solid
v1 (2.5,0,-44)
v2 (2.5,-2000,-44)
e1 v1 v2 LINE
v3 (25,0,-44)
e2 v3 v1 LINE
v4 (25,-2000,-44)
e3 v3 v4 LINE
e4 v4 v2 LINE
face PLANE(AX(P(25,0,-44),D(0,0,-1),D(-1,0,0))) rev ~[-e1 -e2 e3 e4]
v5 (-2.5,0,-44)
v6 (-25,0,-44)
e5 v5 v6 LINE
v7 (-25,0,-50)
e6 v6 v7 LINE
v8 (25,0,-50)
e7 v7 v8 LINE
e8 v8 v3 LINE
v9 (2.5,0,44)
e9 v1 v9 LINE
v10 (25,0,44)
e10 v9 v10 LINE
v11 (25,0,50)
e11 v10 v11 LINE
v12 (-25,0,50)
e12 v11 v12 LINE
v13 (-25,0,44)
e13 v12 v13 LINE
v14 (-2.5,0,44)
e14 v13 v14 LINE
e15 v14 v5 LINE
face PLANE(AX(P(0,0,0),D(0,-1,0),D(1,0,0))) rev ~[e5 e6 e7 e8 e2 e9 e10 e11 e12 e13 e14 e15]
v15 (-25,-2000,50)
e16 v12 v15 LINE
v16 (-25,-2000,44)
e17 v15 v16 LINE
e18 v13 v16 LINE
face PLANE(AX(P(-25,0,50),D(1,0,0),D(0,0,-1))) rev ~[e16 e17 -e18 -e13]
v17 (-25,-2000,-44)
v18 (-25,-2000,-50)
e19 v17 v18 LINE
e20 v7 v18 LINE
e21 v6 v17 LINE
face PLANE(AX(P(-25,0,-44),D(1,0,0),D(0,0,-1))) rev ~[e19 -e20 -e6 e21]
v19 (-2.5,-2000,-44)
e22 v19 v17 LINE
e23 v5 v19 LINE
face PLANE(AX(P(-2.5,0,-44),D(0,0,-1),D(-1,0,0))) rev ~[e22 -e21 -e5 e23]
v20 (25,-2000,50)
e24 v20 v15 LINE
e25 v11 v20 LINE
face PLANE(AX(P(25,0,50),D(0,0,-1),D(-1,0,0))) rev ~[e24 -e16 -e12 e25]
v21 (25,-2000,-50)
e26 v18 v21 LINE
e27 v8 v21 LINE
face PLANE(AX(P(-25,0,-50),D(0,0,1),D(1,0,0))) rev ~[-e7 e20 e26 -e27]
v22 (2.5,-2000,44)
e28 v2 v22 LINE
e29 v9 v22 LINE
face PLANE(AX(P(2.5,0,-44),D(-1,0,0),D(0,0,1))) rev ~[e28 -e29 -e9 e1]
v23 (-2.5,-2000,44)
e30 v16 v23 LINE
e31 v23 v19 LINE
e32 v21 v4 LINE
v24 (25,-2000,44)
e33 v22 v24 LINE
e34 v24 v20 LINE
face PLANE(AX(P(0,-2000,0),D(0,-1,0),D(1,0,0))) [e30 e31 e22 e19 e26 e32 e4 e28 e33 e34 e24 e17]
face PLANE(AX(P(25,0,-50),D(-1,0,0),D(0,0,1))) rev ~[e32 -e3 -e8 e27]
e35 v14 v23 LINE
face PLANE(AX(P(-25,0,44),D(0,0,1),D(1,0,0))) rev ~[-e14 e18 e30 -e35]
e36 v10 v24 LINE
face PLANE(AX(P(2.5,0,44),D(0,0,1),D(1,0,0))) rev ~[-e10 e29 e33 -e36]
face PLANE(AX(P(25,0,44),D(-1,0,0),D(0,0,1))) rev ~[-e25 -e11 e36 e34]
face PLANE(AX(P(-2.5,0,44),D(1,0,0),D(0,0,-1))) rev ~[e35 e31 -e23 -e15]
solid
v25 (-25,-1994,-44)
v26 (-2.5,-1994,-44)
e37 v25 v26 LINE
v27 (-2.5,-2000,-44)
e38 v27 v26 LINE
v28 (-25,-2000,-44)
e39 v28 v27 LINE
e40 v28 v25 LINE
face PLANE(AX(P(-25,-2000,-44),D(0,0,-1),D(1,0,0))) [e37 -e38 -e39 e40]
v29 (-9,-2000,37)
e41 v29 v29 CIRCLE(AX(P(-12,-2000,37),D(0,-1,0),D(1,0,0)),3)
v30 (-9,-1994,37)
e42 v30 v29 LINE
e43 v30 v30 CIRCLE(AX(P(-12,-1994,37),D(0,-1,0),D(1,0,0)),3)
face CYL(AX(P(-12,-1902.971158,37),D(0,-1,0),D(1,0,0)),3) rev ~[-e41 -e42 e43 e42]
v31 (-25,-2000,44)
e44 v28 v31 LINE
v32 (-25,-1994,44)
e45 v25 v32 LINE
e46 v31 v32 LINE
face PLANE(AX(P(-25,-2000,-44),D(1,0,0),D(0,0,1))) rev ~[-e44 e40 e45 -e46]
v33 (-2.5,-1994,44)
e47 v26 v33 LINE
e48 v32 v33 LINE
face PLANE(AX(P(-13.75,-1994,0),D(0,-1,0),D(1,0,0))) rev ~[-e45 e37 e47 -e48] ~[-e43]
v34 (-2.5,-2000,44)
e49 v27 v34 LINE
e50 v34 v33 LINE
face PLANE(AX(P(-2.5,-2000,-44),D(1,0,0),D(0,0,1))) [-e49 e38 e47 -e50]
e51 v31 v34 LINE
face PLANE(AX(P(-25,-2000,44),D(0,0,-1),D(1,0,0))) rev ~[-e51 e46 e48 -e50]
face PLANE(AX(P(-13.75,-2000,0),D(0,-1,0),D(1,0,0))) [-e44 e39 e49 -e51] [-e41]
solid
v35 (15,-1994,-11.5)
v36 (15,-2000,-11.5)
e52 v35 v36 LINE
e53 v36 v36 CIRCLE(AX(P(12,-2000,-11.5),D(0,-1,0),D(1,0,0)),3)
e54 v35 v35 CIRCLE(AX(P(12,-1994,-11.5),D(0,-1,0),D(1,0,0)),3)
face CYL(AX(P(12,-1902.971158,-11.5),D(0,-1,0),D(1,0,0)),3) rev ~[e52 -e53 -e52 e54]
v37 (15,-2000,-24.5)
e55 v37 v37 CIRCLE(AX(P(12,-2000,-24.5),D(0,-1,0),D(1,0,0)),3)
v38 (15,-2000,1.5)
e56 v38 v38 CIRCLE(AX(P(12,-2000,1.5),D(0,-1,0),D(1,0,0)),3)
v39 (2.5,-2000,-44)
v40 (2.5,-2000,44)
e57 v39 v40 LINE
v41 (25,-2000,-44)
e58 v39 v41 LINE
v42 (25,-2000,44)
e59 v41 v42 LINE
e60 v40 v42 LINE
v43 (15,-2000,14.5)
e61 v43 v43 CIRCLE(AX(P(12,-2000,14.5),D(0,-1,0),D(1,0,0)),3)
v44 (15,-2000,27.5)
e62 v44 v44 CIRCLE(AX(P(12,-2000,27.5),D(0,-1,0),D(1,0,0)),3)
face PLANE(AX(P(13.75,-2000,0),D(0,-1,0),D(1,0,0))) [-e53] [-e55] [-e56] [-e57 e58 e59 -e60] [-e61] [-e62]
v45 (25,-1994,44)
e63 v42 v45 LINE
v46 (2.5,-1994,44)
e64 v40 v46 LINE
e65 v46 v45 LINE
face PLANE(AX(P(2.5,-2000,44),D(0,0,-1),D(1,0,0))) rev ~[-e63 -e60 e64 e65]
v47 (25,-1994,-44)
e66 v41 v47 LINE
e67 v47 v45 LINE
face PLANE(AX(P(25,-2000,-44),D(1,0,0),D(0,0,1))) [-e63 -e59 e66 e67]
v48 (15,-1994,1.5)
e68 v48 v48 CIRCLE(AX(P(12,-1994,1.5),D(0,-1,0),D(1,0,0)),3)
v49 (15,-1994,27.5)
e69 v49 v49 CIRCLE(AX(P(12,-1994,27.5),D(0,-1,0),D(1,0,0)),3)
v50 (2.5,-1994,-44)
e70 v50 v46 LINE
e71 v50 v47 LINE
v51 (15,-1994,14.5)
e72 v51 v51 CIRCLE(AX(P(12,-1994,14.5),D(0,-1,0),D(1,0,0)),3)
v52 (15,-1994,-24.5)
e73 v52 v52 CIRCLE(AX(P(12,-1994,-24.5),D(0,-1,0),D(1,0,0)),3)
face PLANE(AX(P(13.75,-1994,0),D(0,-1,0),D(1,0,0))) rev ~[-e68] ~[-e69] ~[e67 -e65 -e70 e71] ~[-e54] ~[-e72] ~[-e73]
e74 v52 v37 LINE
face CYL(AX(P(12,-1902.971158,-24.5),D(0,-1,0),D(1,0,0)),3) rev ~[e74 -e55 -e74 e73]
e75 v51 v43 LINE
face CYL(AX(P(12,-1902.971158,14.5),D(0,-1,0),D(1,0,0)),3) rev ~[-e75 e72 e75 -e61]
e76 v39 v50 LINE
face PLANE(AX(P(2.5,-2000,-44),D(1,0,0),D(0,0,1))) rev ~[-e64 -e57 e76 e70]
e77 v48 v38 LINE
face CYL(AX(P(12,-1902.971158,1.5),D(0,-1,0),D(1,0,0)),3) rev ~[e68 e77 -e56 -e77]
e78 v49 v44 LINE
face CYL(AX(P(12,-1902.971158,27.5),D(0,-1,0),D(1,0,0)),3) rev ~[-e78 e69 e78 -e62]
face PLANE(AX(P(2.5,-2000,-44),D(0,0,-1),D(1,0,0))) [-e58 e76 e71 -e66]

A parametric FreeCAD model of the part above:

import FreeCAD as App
import Part
import Sketcher
from FreeCAD import Vector


def add_polygon(sketch, points):
    """Adds a closed chain of lines whose ends are joined by coincident constraints."""
    first, n = sketch.GeometryCount, len(points)
    for a, b in zip(points, points[1:] + points[:1]):
        sketch.addGeometry(Part.LineSegment(App.Vector(*a, 0), App.Vector(*b, 0)), False)
    for i in range(n):
        sketch.addConstraint(Sketcher.Constraint("Coincident", first + i, 2, first + (i + 1) % n, 1))

doc = App.newDocument("Part")
params = doc.addObject("Spreadsheet::Sheet", "Params")
for row, (alias, value) in enumerate([
    ("sketch1_width", "50 mm"),
    ("sketch1_height", "6 mm"),
    ("sketch1_height2", "88 mm"),
    ("sketch1_width2", "22.5 mm"),
    ("pad1_length", "2000 mm"),
    ("sketch2_height", "88 mm"),
    ("sketch2_width", "22.5 mm"),
    ("pad2_length", "6 mm"),
    ("sketch3_diameter", "6 mm"),
    ("hole_diameter", "6 mm"),
    ("sketch4_height", "88 mm"),
    ("sketch4_width", "22.5 mm"),
    ("pad3_length", "6 mm"),
    ("sketch5_diameter", "6 mm"),
    ("hole2_diameter", "6 mm"),
], start=1):
    params.set(f"A{row}", alias)
    params.set(f"B{row}", "=" + value)
    params.setAlias(f"B{row}", alias)

body = doc.addObject("PartDesign::Body", "Body")

sketch1 = body.newObject("Sketcher::SketchObject", "Sketch")
sketch1.AttachmentSupport = (doc.getObject("XZ_Plane"), [""])
sketch1.MapMode = "FlatFace"
add_polygon(sketch1, [(25, 44), (25, 50), (-25, 50), (-25, 44), (-2.5, 44), (-2.5, -44), (-25, -44), (-25, -50), (25, -50), (25, -44), (2.5, -44), (2.5, 44)])
sketch1.addConstraint([
    Sketcher.Constraint("Vertical", 0),
    Sketcher.Constraint("Horizontal", 1),
    Sketcher.Constraint("Vertical", 2),
    Sketcher.Constraint("Horizontal", 3),
    Sketcher.Constraint("Vertical", 4),
    Sketcher.Constraint("Horizontal", 5),
    Sketcher.Constraint("Vertical", 6),
    Sketcher.Constraint("Horizontal", 7),
    Sketcher.Constraint("Vertical", 8),
    Sketcher.Constraint("Horizontal", 9),
    Sketcher.Constraint("Vertical", 10),
    Sketcher.Constraint("Horizontal", 11),
    Sketcher.Constraint("Symmetric", 0, 2, 6, 2, -1, 1),
    Sketcher.Constraint("Symmetric", 2, 2, 8, 2, -1, 1),
    Sketcher.Constraint("Symmetric", 4, 2, 10, 2, -1, 1),
    Sketcher.Constraint("Symmetric", 5, 2, 8, 2, -2),
    Sketcher.Constraint("DistanceX", 1, 2, 1, 1, 50.0),
    Sketcher.Constraint("DistanceY", 0, 1, 0, 2, 6.0),
    Sketcher.Constraint("DistanceY", 4, 2, 4, 1, 88.0),
    Sketcher.Constraint("DistanceX", 3, 1, 3, 2, 22.5),
])
sketch1.setExpression("Constraints[28]", "Params.sketch1_width")
sketch1.setExpression("Constraints[29]", "Params.sketch1_height")
sketch1.setExpression("Constraints[30]", "Params.sketch1_height2")
sketch1.setExpression("Constraints[31]", "Params.sketch1_width2")
pad1 = body.newObject("PartDesign::Pad", "Pad")
pad1.Profile = sketch1
pad1.setExpression("Length", "Params.pad1_length")
body2 = doc.addObject("PartDesign::Body", "Body001")

sketch2 = body2.newObject("Sketcher::SketchObject", "Sketch001")
sketch2.AttachmentSupport = (doc.getObject("XZ_Plane001"), [""])
sketch2.MapMode = "FlatFace"
sketch2.AttachmentOffset = App.Placement(Vector(0, 0, 2000), App.Rotation())
add_polygon(sketch2, [(-25, 44), (-25, -44), (-2.5, -44), (-2.5, 44)])
sketch2.addConstraint([
    Sketcher.Constraint("Vertical", 0),
    Sketcher.Constraint("Horizontal", 1),
    Sketcher.Constraint("Vertical", 2),
    Sketcher.Constraint("Horizontal", 3),
    Sketcher.Constraint("DistanceY", 0, 2, 0, 1, 88.0),
    Sketcher.Constraint("DistanceX", 1, 1, 1, 2, 22.5),
    Sketcher.Constraint("DistanceX", 0, 2, -1, 1, 25.0),
    Sketcher.Constraint("DistanceY", 0, 2, -1, 1, 44.0),
])
sketch2.setExpression("Constraints[8]", "Params.sketch2_height")
sketch2.setExpression("Constraints[9]", "Params.sketch2_width")
pad2 = body2.newObject("PartDesign::Pad", "Pad001")
pad2.Profile = sketch2
pad2.setExpression("Length", "Params.pad2_length")
pad2.Reversed = True

sketch3 = body2.newObject("Sketcher::SketchObject", "Sketch002")
sketch3.AttachmentSupport = (doc.getObject("XZ_Plane001"), [""])
sketch3.MapMode = "FlatFace"
sketch3.AttachmentOffset = App.Placement(Vector(0, 0, 1994), App.Rotation())
sketch3.addGeometry(Part.Circle(Vector(-12, 37, 0), Vector(0, 0, 1), 3), False)
sketch3.addConstraint([
    Sketcher.Constraint("Diameter", 0, 6.0),
    Sketcher.Constraint("DistanceX", 0, 3, -1, 1, 12.0),
    Sketcher.Constraint("DistanceY", -1, 1, 0, 3, 37.0),
])
sketch3.setExpression("Constraints[0]", "Params.sketch3_diameter")
doc.recompute()
hole = body2.newObject("PartDesign::Hole", "Hole")
hole.Profile = sketch3
hole.ThreadType = "None"
hole.setExpression("Diameter", "Params.hole_diameter")
hole.DepthType = "ThroughAll"
hole.Reversed = True
body3 = doc.addObject("PartDesign::Body", "Body002")

sketch4 = body3.newObject("Sketcher::SketchObject", "Sketch003")
sketch4.AttachmentSupport = (doc.getObject("XZ_Plane002"), [""])
sketch4.MapMode = "FlatFace"
sketch4.AttachmentOffset = App.Placement(Vector(0, 0, 2000), App.Rotation())
add_polygon(sketch4, [(2.5, 44), (2.5, -44), (25, -44), (25, 44)])
sketch4.addConstraint([
    Sketcher.Constraint("Vertical", 0),
    Sketcher.Constraint("Horizontal", 1),
    Sketcher.Constraint("Vertical", 2),
    Sketcher.Constraint("Horizontal", 3),
    Sketcher.Constraint("DistanceY", 0, 2, 0, 1, 88.0),
    Sketcher.Constraint("DistanceX", 1, 1, 1, 2, 22.5),
    Sketcher.Constraint("DistanceY", 0, 2, -1, 1, 44.0),
    Sketcher.Constraint("DistanceX", -1, 1, 1, 2, 25.0),
])
sketch4.setExpression("Constraints[8]", "Params.sketch4_height")
sketch4.setExpression("Constraints[9]", "Params.sketch4_width")
pad3 = body3.newObject("PartDesign::Pad", "Pad002")
pad3.Profile = sketch4
pad3.setExpression("Length", "Params.pad3_length")
pad3.Reversed = True

sketch5 = body3.newObject("Sketcher::SketchObject", "Sketch004")
sketch5.AttachmentSupport = (doc.getObject("XZ_Plane002"), [""])
sketch5.MapMode = "FlatFace"
sketch5.AttachmentOffset = App.Placement(Vector(0, 0, 1994), App.Rotation())
sketch5.addGeometry([
    Part.Circle(Vector(12, 27.5, 0), Vector(0, 0, 1), 3),
    Part.Circle(Vector(12, 14.5, 0), Vector(0, 0, 1), 3),
    Part.Circle(Vector(12, 1.5, 0), Vector(0, 0, 1), 3),
    Part.Circle(Vector(12, -11.5, 0), Vector(0, 0, 1), 3),
    Part.Circle(Vector(12, -24.5, 0), Vector(0, 0, 1), 3),
], False)
sketch5.addConstraint([
    Sketcher.Constraint("Equal", 0, 1),
    Sketcher.Constraint("Equal", 1, 2),
    Sketcher.Constraint("Equal", 2, 3),
    Sketcher.Constraint("Equal", 3, 4),
    Sketcher.Constraint("Vertical", 0, 3, 1, 3),
    Sketcher.Constraint("Vertical", 1, 3, 2, 3),
    Sketcher.Constraint("Vertical", 2, 3, 3, 3),
    Sketcher.Constraint("Vertical", 3, 3, 4, 3),
    Sketcher.Constraint("Diameter", 0, 6.0),
    Sketcher.Constraint("DistanceX", -1, 1, 0, 3, 12.0),
    Sketcher.Constraint("DistanceY", 1, 3, 0, 3, 13.0),
    Sketcher.Constraint("DistanceY", 2, 3, 1, 3, 13.0),
    Sketcher.Constraint("DistanceY", 3, 3, 2, 3, 13.0),
    Sketcher.Constraint("DistanceY", 4, 3, 3, 3, 13.0),
    Sketcher.Constraint("DistanceY", -1, 1, 0, 3, 27.5),
])
sketch5.setExpression("Constraints[8]", "Params.sketch5_diameter")
doc.recompute()
hole2 = body3.newObject("PartDesign::Hole", "Hole001")
hole2.Profile = sketch5
hole2.ThreadType = "None"
hole2.setExpression("Diameter", "Params.hole2_diameter")
hole2.DepthType = "ThroughAll"
hole2.Reversed = True

doc.recompute()
